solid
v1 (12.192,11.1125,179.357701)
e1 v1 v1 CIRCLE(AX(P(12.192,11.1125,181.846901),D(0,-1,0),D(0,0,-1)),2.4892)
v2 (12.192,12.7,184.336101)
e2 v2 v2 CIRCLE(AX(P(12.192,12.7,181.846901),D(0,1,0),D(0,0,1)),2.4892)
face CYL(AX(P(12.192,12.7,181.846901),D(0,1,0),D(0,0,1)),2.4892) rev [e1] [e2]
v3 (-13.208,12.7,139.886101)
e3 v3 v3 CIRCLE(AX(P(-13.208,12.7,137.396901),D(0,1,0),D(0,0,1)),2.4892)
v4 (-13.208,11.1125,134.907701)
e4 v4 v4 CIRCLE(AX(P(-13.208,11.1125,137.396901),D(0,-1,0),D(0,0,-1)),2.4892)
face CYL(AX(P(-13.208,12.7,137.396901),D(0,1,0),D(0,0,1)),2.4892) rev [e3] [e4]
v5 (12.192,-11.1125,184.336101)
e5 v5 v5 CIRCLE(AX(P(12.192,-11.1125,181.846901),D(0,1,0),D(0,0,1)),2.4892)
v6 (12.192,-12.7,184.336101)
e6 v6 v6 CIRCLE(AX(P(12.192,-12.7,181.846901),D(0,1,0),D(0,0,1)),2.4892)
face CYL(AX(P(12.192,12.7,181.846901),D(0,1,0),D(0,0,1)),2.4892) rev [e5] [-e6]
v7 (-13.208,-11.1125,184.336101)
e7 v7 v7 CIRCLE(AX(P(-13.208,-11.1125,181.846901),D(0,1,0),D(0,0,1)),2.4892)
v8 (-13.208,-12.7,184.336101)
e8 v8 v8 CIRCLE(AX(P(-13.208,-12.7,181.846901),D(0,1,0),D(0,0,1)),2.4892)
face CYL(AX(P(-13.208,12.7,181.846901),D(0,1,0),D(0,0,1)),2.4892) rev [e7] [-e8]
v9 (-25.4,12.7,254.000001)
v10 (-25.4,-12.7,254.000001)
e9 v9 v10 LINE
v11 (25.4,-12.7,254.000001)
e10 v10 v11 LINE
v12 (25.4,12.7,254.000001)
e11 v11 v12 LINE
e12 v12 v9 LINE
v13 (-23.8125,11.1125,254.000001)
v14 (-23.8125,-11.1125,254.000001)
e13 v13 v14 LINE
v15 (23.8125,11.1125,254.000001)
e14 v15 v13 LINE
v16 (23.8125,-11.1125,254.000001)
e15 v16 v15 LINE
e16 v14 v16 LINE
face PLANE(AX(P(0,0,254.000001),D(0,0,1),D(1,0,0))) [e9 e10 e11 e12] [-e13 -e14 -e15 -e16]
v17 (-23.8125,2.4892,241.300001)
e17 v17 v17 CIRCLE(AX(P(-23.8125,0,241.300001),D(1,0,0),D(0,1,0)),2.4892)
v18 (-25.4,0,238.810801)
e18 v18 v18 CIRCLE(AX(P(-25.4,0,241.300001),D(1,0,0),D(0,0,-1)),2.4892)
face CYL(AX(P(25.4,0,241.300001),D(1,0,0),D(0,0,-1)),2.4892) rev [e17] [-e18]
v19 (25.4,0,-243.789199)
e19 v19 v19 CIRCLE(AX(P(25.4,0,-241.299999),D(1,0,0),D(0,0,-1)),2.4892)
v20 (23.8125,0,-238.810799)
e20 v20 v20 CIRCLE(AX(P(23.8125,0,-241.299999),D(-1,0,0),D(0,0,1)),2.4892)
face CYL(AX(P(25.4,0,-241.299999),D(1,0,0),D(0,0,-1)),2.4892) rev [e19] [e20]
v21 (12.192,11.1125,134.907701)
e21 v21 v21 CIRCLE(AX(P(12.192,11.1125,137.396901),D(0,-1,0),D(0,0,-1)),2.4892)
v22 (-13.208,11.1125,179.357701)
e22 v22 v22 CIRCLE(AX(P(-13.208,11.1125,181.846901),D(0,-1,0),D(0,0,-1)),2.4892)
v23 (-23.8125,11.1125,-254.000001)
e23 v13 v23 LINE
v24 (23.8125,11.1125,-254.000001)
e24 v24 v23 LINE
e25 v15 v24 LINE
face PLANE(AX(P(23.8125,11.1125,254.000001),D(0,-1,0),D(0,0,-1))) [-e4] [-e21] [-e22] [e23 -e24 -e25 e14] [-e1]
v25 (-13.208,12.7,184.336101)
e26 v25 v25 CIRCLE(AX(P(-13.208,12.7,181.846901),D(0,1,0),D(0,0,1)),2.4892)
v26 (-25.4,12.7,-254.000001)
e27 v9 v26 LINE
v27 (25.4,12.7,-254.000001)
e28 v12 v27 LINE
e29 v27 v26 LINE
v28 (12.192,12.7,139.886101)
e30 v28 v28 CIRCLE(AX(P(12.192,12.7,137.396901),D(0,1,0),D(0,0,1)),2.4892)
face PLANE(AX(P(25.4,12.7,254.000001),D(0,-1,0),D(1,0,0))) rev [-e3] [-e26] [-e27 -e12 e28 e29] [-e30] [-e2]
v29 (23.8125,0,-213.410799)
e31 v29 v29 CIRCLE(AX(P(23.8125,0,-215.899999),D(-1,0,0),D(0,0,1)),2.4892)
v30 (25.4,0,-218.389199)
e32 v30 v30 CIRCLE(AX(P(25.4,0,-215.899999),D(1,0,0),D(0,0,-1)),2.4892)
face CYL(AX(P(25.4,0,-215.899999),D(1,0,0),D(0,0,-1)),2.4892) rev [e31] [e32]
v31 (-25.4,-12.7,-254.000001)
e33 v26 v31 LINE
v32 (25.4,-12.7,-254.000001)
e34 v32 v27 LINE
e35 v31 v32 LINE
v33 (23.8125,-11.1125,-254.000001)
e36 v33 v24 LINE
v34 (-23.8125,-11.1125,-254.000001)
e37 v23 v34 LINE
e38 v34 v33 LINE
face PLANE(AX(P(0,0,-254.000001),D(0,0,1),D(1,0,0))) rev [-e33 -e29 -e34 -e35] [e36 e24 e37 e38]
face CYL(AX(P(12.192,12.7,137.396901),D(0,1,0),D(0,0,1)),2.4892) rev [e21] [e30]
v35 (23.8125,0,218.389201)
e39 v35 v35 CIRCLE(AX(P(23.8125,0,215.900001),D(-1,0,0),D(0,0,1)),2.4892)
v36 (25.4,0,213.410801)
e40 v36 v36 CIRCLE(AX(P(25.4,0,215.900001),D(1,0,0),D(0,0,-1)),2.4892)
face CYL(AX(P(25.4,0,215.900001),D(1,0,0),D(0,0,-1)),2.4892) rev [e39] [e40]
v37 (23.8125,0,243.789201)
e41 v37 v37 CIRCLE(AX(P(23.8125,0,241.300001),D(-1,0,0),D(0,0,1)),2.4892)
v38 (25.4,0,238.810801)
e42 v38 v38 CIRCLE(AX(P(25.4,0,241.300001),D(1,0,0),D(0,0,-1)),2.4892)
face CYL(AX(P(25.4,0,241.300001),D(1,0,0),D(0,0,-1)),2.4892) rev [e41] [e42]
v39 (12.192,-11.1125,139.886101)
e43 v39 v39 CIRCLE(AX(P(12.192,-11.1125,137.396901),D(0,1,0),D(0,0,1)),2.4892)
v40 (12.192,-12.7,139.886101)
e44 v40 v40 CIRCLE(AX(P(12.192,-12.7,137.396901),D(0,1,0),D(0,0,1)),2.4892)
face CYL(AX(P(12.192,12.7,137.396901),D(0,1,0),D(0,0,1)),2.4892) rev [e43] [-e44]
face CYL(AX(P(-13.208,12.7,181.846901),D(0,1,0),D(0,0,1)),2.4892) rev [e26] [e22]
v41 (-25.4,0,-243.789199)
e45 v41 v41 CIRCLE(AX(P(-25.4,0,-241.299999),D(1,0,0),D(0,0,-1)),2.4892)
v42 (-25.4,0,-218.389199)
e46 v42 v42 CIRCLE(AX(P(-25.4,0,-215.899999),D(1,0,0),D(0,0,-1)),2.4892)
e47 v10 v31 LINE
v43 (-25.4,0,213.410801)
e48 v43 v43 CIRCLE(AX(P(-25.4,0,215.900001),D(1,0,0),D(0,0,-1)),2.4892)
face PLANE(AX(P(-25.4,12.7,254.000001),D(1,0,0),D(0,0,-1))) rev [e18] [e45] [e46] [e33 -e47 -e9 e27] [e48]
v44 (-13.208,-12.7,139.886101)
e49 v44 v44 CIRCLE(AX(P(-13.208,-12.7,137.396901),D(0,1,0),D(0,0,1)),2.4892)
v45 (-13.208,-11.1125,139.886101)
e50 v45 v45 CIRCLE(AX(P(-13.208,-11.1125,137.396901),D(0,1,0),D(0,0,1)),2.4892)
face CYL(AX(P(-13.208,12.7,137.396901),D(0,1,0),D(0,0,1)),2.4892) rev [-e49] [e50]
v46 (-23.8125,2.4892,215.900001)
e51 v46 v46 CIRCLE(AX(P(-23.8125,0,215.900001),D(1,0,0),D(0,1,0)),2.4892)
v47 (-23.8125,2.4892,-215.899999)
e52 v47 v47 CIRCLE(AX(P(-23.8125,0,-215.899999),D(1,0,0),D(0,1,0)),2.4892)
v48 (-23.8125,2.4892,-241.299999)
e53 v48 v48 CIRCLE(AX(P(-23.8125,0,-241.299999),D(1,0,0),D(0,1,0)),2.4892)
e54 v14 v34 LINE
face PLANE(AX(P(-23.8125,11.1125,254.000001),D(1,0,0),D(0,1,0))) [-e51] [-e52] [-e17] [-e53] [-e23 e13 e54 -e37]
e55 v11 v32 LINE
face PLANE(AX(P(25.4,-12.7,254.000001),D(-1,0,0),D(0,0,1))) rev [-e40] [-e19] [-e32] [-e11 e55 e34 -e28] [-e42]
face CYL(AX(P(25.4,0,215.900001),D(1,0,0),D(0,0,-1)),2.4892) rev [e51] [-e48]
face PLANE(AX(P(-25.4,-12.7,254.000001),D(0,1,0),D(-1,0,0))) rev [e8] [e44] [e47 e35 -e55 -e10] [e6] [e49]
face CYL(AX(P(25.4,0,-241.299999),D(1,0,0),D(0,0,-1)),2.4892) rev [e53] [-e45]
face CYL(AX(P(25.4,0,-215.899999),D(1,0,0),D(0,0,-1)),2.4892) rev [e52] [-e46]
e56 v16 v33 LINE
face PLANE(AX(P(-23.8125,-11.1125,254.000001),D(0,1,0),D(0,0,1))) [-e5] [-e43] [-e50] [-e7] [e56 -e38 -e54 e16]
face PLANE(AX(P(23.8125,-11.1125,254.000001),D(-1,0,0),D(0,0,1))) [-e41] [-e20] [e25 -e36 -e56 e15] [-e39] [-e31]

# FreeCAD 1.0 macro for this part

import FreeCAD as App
import Part
import Sketcher
Q = App.Units.Quantity


def add_polygon(sketch, points):
    """Adds a closed chain of lines whose ends are joined by coincident constraints."""
    first, n = sketch.GeometryCount, len(points)
    for a, b in zip(points, points[1:] + points[:1]):
        sketch.addGeometry(Part.LineSegment(App.Vector(*a, 0), App.Vector(*b, 0)), False)
    for i in range(n):
        sketch.addConstraint(Sketcher.Constraint("Coincident", first + i, 2, first + (i + 1) % n, 1))

doc = App.newDocument("Part")
params = doc.addObject("Spreadsheet::Sheet", "Params")
for row, (alias, value) in enumerate([
    ("sketch1_width", "2 in"),
    ("sketch1_height", "1 in"),
    ("sketch1_width2", "1.875 in"),
    ("sketch1_height2", "0.875 in"),
    ("pad1_length", "10 in"),
    ("pad1_length2", "10 in"),
    ("sketch2_diameter", "0.196 in"),
    ("hole_diameter", "0.196 in"),
    ("sketch3_diameter", "0.196 in"),
    ("hole2_diameter", "0.196 in"),
], start=1):
    params.set(f"A{row}", alias)
    params.set(f"B{row}", "=" + value)
    params.setAlias(f"B{row}", alias)

body = doc.addObject("PartDesign::Body", "Body")

sketch1 = body.newObject("Sketcher::SketchObject", "Sketch")
sketch1.AttachmentSupport = (doc.getObject("XY_Plane"), [""])
sketch1.MapMode = "FlatFace"
add_polygon(sketch1, [(-25.4, 12.7), (-25.4, -12.7), (25.4, -12.7), (25.4, 12.7)])
add_polygon(sketch1, [(23.8125, -11.1125), (-23.8125, -11.1125), (-23.8125, 11.1125), (23.8125, 11.1125)])
sketch1.addConstraint(Sketcher.Constraint("Vertical", 0))
sketch1.addConstraint(Sketcher.Constraint("Horizontal", 1))
sketch1.addConstraint(Sketcher.Constraint("Vertical", 2))
sketch1.addConstraint(Sketcher.Constraint("Horizontal", 3))
sketch1.addConstraint(Sketcher.Constraint("Horizontal", 4))
sketch1.addConstraint(Sketcher.Constraint("Vertical", 5))
sketch1.addConstraint(Sketcher.Constraint("Horizontal", 6))
sketch1.addConstraint(Sketcher.Constraint("Vertical", 7))
sketch1.addConstraint(Sketcher.Constraint("Symmetric", 0, 2, 2, 2, -1, 1))
sketch1.addConstraint(Sketcher.Constraint("Symmetric", 4, 2, 6, 2, -1, 1))
sketch1.addConstraint(Sketcher.Constraint("DistanceX", 1, 1, 1, 2, Q("2 in")))
sketch1.addConstraint(Sketcher.Constraint("DistanceY", 0, 2, 0, 1, Q("1 in")))
sketch1.addConstraint(Sketcher.Constraint("DistanceX", 4, 2, 4, 1, Q("1.875 in")))
sketch1.addConstraint(Sketcher.Constraint("DistanceY", 5, 1, 5, 2, Q("0.875 in")))
sketch1.setExpression("Constraints[18]", "Params.sketch1_width")
sketch1.setExpression("Constraints[19]", "Params.sketch1_height")
sketch1.setExpression("Constraints[20]", "Params.sketch1_width2")
sketch1.setExpression("Constraints[21]", "Params.sketch1_height2")
pad1 = body.newObject("PartDesign::Pad", "Pad")
pad1.Profile = sketch1
pad1.Type = "TwoLengths"
pad1.setExpression("Length", "Params.pad1_length")
pad1.setExpression("Length2", "Params.pad1_length2")

sketch2 = body.newObject("Sketcher::SketchObject", "Sketch001")
sketch2.AttachmentSupport = (doc.getObject("YZ_Plane"), [""])
sketch2.MapMode = "FlatFace"
sketch2.AttachmentOffset = App.Placement(App.Vector(0, 0, 1 * 25.4), App.Rotation())
sketch2.addGeometry(Part.Circle(App.Vector(0, 241.300001, 0), App.Vector(0, 0, 1), 2.4892), False)
sketch2.addGeometry(Part.Circle(App.Vector(0, 215.900001, 0), App.Vector(0, 0, 1), 2.4892), False)
sketch2.addGeometry(Part.Circle(App.Vector(0, -215.899999, 0), App.Vector(0, 0, 1), 2.4892), False)
sketch2.addGeometry(Part.Circle(App.Vector(0, -241.299999, 0), App.Vector(0, 0, 1), 2.4892), False)
sketch2.addConstraint(Sketcher.Constraint("Equal", 0, 1))
sketch2.addConstraint(Sketcher.Constraint("Equal", 1, 2))
sketch2.addConstraint(Sketcher.Constraint("Equal", 2, 3))
sketch2.addConstraint(Sketcher.Constraint("Symmetric", 1, 3, 2, 3, -1, 1))
sketch2.addConstraint(Sketcher.Constraint("Symmetric", 0, 3, 3, 3, -1, 1))
sketch2.addConstraint(Sketcher.Constraint("PointOnObject", 0, 3, -2))
sketch2.addConstraint(Sketcher.Constraint("PointOnObject", 1, 3, -2))
sketch2.addConstraint(Sketcher.Constraint("Diameter", 0, Q("0.196 in")))
sketch2.addConstraint(Sketcher.Constraint("DistanceY", 1, 3, 0, 3, Q("1 in")))
sketch2.addConstraint(Sketcher.Constraint("DistanceY", 2, 3, 1, 3, Q("17 in")))
sketch2.setExpression("Constraints[7]", "Params.sketch2_diameter")
doc.recompute()
hole = body.newObject("PartDesign::Hole", "Hole")
hole.Profile = sketch2
hole.ThreadType = "None"
hole.setExpression("Diameter", "Params.hole_diameter")
hole.DepthType = "ThroughAll"

sketch3 = body.newObject("Sketcher::SketchObject", "Sketch002")
sketch3.AttachmentSupport = (doc.getObject("XZ_Plane"), [""])
sketch3.MapMode = "FlatFace"
sketch3.AttachmentOffset = App.Placement(App.Vector(0, 0, -0.5 * 25.4), App.Rotation())
sketch3.addGeometry(Part.Circle(App.Vector(12.192, 137.396901, 0), App.Vector(0, 0, 1), 2.4892), False)
sketch3.addGeometry(Part.Circle(App.Vector(-13.208, 137.396901, 0), App.Vector(0, 0, 1), 2.4892), False)
sketch3.addGeometry(Part.Circle(App.Vector(-13.208, 181.846901, 0), App.Vector(0, 0, 1), 2.4892), False)
sketch3.addGeometry(Part.Circle(App.Vector(12.192, 181.846901, 0), App.Vector(0, 0, 1), 2.4892), False)
sketch3.addConstraint(Sketcher.Constraint("Equal", 0, 1))
sketch3.addConstraint(Sketcher.Constraint("Equal", 1, 2))
sketch3.addConstraint(Sketcher.Constraint("Equal", 2, 3))
sketch3.addConstraint(Sketcher.Constraint("Horizontal", 0, 3, 1, 3))
sketch3.addConstraint(Sketcher.Constraint("Horizontal", 2, 3, 3, 3))
sketch3.addConstraint(Sketcher.Constraint("Vertical", 1, 3, 2, 3))
sketch3.addConstraint(Sketcher.Constraint("Vertical", 0, 3, 3, 3))
sketch3.addConstraint(Sketcher.Constraint("Diameter", 0, Q("0.196 in")))
sketch3.addConstraint(Sketcher.Constraint("DistanceX", 1, 3, 0, 3, Q("1 in")))
sketch3.addConstraint(Sketcher.Constraint("DistanceX", -1, 1, 0, 3, Q("0.48 in")))
sketch3.addConstraint(Sketcher.Constraint("DistanceY", 1, 3, 2, 3, Q("1.75 in")))
sketch3.addConstraint(Sketcher.Constraint("DistanceY", -1, 1, 0, 3, 137.396901))
sketch3.setExpression("Constraints[7]", "Params.sketch3_diameter")
doc.recompute()
hole2 = body.newObject("PartDesign::Hole", "Hole001")
hole2.Profile = sketch3
hole2.ThreadType = "None"
hole2.setExpression("Diameter", "Params.hole2_diameter")
hole2.DepthType = "ThroughAll"
hole2.Reversed = True

doc.recompute()
